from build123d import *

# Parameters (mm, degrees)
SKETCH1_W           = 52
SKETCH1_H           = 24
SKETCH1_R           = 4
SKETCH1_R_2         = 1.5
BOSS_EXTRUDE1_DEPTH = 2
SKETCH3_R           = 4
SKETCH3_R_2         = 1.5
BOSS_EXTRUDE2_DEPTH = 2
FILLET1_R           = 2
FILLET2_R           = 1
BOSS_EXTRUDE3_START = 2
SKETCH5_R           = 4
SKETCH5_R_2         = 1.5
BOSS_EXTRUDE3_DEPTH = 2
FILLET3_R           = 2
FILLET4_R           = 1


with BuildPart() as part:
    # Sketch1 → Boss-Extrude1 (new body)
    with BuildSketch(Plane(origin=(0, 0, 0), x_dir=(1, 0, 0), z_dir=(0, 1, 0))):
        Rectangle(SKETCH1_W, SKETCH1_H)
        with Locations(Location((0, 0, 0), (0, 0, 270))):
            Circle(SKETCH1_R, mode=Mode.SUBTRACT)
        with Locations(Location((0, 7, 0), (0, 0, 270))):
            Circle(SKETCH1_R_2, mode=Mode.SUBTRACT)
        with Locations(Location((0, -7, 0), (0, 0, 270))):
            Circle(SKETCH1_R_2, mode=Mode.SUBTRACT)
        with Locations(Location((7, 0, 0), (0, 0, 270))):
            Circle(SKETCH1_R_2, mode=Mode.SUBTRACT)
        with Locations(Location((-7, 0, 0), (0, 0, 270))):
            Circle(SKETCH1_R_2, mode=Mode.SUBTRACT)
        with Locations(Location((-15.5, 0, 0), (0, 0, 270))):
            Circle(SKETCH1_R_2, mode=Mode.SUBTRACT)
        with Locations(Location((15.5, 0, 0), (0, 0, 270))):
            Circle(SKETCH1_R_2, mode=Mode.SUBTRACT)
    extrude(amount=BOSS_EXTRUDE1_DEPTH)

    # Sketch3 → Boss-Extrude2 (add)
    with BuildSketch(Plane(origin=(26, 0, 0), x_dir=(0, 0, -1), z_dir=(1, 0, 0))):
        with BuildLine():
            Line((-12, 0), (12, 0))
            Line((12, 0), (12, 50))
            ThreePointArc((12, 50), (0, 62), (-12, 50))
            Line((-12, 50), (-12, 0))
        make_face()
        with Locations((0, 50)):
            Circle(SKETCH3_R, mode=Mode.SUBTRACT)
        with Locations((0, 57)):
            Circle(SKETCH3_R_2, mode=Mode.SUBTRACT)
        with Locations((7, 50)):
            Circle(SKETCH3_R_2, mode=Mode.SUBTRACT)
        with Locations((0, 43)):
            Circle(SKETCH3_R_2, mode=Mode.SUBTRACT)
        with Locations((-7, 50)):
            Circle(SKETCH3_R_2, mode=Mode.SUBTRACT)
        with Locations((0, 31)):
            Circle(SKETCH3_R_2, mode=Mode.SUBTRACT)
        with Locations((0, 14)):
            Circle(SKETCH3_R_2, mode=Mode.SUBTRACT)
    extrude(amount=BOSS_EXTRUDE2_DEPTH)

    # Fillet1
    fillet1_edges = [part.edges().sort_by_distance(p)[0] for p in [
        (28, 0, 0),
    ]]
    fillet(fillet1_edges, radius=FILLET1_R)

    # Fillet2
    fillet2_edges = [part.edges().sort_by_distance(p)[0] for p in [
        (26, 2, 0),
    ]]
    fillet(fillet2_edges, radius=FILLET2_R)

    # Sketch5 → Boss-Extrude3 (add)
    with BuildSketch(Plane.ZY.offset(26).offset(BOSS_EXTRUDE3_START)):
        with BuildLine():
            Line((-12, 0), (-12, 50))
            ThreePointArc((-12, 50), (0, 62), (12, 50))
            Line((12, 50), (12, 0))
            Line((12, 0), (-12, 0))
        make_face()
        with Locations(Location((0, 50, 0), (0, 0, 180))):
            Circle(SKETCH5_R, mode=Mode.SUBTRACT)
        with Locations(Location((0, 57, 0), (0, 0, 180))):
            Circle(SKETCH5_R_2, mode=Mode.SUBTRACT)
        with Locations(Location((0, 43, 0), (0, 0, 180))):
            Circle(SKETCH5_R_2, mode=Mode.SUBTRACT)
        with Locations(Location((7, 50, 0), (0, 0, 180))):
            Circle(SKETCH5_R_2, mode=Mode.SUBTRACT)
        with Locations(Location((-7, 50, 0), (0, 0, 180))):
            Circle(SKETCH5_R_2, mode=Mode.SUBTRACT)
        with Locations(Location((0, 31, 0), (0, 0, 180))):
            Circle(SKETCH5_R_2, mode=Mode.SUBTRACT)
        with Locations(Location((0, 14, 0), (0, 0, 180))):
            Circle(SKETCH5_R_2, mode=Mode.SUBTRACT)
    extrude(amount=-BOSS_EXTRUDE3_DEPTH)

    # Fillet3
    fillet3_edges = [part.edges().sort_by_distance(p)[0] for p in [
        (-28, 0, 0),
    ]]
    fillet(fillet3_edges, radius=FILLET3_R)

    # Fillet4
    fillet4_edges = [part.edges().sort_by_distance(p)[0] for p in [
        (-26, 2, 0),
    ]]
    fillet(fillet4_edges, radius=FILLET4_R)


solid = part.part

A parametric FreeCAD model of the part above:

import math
import FreeCAD as App
import Part
import Sketcher

V = App.Vector


def edges_at(feature, points):
    """Names of the edges that pass closest to the given points."""
    edges = feature.Shape.Edges
    near = lambda p: min(range(len(edges)), key=lambda i: edges[i].distToShape(Part.Vertex(*p))[0])
    return sorted({f"Edge{near(p) + 1}" for p in points})

doc = App.newDocument("Part")
body = doc.addObject("PartDesign::Body", "Body")

# Sketch on XZ plane
sketch1 = doc.addObject("Sketcher::SketchObject", "Sketch")
body.addObject(sketch1)
sketch1.AttachmentSupport = (doc.XZ_Plane, [""])
sketch1.MapMode = "FlatFace"
sketch1.addGeometry(Part.LineSegment(V(-26, -12, 0), V(-26, 12, 0)), False)
sketch1.addGeometry(Part.LineSegment(V(-26, 12, 0), V(26, 12, 0)), False)
sketch1.addGeometry(Part.LineSegment(V(26, 12, 0), V(26, -12, 0)), False)
sketch1.addGeometry(Part.LineSegment(V(26, -12, 0), V(-26, -12, 0)), False)
sketch1.addGeometry(Part.Circle(V(0, 7, 0), V(0, 0, 1), 1.5), False)
sketch1.addGeometry(Part.Circle(V(-15.5, 0, 0), V(0, 0, 1), 1.5), False)
sketch1.addGeometry(Part.Circle(V(-7, 0, 0), V(0, 0, 1), 1.5), False)
sketch1.addGeometry(Part.Circle(V(0, 0, 0), V(0, 0, 1), 4), False)
sketch1.addGeometry(Part.Circle(V(7, 0, 0), V(0, 0, 1), 1.5), False)
sketch1.addGeometry(Part.Circle(V(15.5, 0, 0), V(0, 0, 1), 1.5), False)
sketch1.addGeometry(Part.Circle(V(0, -7, 0), V(0, 0, 1), 1.5), False)
sketch1.addConstraint(Sketcher.Constraint("Coincident", 0, 2, 1, 1))
sketch1.addConstraint(Sketcher.Constraint("Coincident", 1, 2, 2, 1))
sketch1.addConstraint(Sketcher.Constraint("Coincident", 2, 2, 3, 1))
sketch1.addConstraint(Sketcher.Constraint("Coincident", 3, 2, 0, 1))
sketch1.addConstraint(Sketcher.Constraint("Vertical", 0))
sketch1.addConstraint(Sketcher.Constraint("Horizontal", 1))
sketch1.addConstraint(Sketcher.Constraint("Vertical", 2))
sketch1.addConstraint(Sketcher.Constraint("Horizontal", 3))
sketch1.addConstraint(Sketcher.Constraint("Coincident", 7, 3, -1, 1))
sketch1.addConstraint(Sketcher.Constraint("Equal", 4, 5))
sketch1.addConstraint(Sketcher.Constraint("Equal", 5, 6))
sketch1.addConstraint(Sketcher.Constraint("Equal", 6, 8))
sketch1.addConstraint(Sketcher.Constraint("Equal", 8, 9))
sketch1.addConstraint(Sketcher.Constraint("Equal", 9, 10))
sketch1.addConstraint(Sketcher.Constraint("Symmetric", 6, 3, 8, 3, -1, 1))
sketch1.addConstraint(Sketcher.Constraint("Symmetric", 5, 3, 9, 3, -1, 1))
sketch1.addConstraint(Sketcher.Constraint("Symmetric", 4, 3, 10, 3, -1, 1))
sketch1.addConstraint(Sketcher.Constraint("Symmetric", 0, 2, 2, 2, -1, 1))
sketch1.addConstraint(Sketcher.Constraint("PointOnObject", 4, 3, -2))
sketch1.addConstraint(Sketcher.Constraint("PointOnObject", 5, 3, -1))
sketch1.addConstraint(Sketcher.Constraint("PointOnObject", 6, 3, -1))
sketch1.addConstraint(Sketcher.Constraint("Diameter", 4, 3.0))
sketch1.addConstraint(Sketcher.Constraint("Diameter", 7, 8.0))
sketch1.addConstraint(Sketcher.Constraint("DistanceX", 1, 1, 1, 2, 52.0))
sketch1.addConstraint(Sketcher.Constraint("DistanceY", 0, 1, 0, 2, 24.0))
sketch1.addConstraint(Sketcher.Constraint("DistanceY", -1, 1, 4, 3, 7.0))
sketch1.addConstraint(Sketcher.Constraint("DistanceX", 6, 3, -1, 1, 7.0))
sketch1.addConstraint(Sketcher.Constraint("DistanceX", 5, 3, 9, 3, 31.0))
pad1 = doc.addObject("PartDesign::Pad", "Pad")
body.addObject(pad1)
pad1.Profile = sketch1
pad1.Length = 2
pad1.Reversed = True

# Sketch on YZ plane
sketch2 = doc.addObject("Sketcher::SketchObject", "Sketch001")
body.addObject(sketch2)
sketch2.AttachmentSupport = (doc.YZ_Plane, [""])
sketch2.MapMode = "FlatFace"
sketch2.AttachmentOffset = App.Placement(V(0, 0, 26), App.Rotation())
sketch2.addGeometry(Part.LineSegment(V(0, 12, 0), V(0, -12, 0)), False)
sketch2.addGeometry(Part.LineSegment(V(0, -12, 0), V(50, -12, 0)), False)
sketch2.addGeometry(Part.ArcOfCircle(Part.Circle(V(50, 0, 0), V(0, 0, 1), 12), math.radians(-90), math.radians(90)), False)
sketch2.addGeometry(Part.LineSegment(V(50, 12, 0), V(0, 12, 0)), False)
sketch2.addGeometry(Part.Circle(V(14, 0, 0), V(0, 0, 1), 1.5), False)
sketch2.addGeometry(Part.Circle(V(31, 0, 0), V(0, 0, 1), 1.5), False)
sketch2.addGeometry(Part.Circle(V(50, 7, 0), V(0, 0, 1), 1.5), False)
sketch2.addGeometry(Part.Circle(V(43, 0, 0), V(0, 0, 1), 1.5), False)
sketch2.addGeometry(Part.Circle(V(50, 0, 0), V(0, 0, 1), 4), False)
sketch2.addGeometry(Part.Circle(V(57, 0, 0), V(0, 0, 1), 1.5), False)
sketch2.addGeometry(Part.Circle(V(50, -7, 0), V(0, 0, 1), 1.5), False)
sketch2.addConstraint(Sketcher.Constraint("Coincident", 0, 2, 1, 1))
sketch2.addConstraint(Sketcher.Constraint("Tangent", 1, 2, 2, 1))
sketch2.addConstraint(Sketcher.Constraint("Tangent", 2, 2, 3, 1))
sketch2.addConstraint(Sketcher.Constraint("Coincident", 3, 2, 0, 1))
sketch2.addConstraint(Sketcher.Constraint("Vertical", 0))
sketch2.addConstraint(Sketcher.Constraint("Horizontal", 1))
sketch2.addConstraint(Sketcher.Constraint("Horizontal", 3))
sketch2.addConstraint(Sketcher.Constraint("Coincident", 8, 3, 2, 3))
sketch2.addConstraint(Sketcher.Constraint("Equal", 4, 5))
sketch2.addConstraint(Sketcher.Constraint("Equal", 5, 6))
sketch2.addConstraint(Sketcher.Constraint("Equal", 6, 7))
sketch2.addConstraint(Sketcher.Constraint("Equal", 7, 9))
sketch2.addConstraint(Sketcher.Constraint("Equal", 9, 10))
sketch2.addConstraint(Sketcher.Constraint("Symmetric", 0, 2, 3, 2, -1, 1))
sketch2.addConstraint(Sketcher.Constraint("Symmetric", 6, 3, 10, 3, -1))
sketch2.addConstraint(Sketcher.Constraint("PointOnObject", 4, 3, -1))
sketch2.addConstraint(Sketcher.Constraint("PointOnObject", 5, 3, -1))
sketch2.addConstraint(Sketcher.Constraint("PointOnObject", 7, 3, -1))
sketch2.addConstraint(Sketcher.Constraint("PointOnObject", 9, 3, -1))
sketch2.addConstraint(Sketcher.Constraint("Vertical", 2, 3, 6, 3))
sketch2.addConstraint(Sketcher.Constraint("Diameter", 4, 3.0))
sketch2.addConstraint(Sketcher.Constraint("Diameter", 8, 8.0))
sketch2.addConstraint(Sketcher.Constraint("Radius", 2, 12.0))
sketch2.addConstraint(Sketcher.Constraint("DistanceX", 1, 1, 1, 2, 50.0))
sketch2.addConstraint(Sketcher.Constraint("DistanceX", -1, 1, 4, 3, 14.0))
sketch2.addConstraint(Sketcher.Constraint("DistanceX", -1, 1, 5, 3, 31.0))
sketch2.addConstraint(Sketcher.Constraint("DistanceY", -1, 1, 6, 3, 7.0))
sketch2.addConstraint(Sketcher.Constraint("DistanceX", -1, 1, 7, 3, 43.0))
sketch2.addConstraint(Sketcher.Constraint("DistanceX", -1, 1, 9, 3, 57.0))
pad2 = doc.addObject("PartDesign::Pad", "Pad001")
body.addObject(pad2)
pad2.Profile = sketch2
pad2.Length = 2
doc.recompute()

fillet = doc.addObject("PartDesign::Fillet", "Fillet")
body.addObject(fillet)
fillet.Base = (pad2, edges_at(pad2, [(28, 0, 0)]))
fillet.Radius = 2
doc.recompute()

fillet2 = doc.addObject("PartDesign::Fillet", "Fillet001")
body.addObject(fillet2)
fillet2.Base = (fillet, edges_at(fillet, [(26, 2, 0)]))
fillet2.Radius = 1

# Sketch on YZ plane
sketch3 = doc.addObject("Sketcher::SketchObject", "Sketch002")
body.addObject(sketch3)
sketch3.AttachmentSupport = (doc.YZ_Plane, [""])
sketch3.MapMode = "FlatFace"
sketch3.AttachmentOffset = App.Placement(V(0, 0, -28), App.Rotation())
sketch3.addGeometry(Part.LineSegment(V(50, -12, 0), V(0, -12, 0)), False)
sketch3.addGeometry(Part.LineSegment(V(0, -12, 0), V(0, 12, 0)), False)
sketch3.addGeometry(Part.LineSegment(V(0, 12, 0), V(50, 12, 0)), False)
sketch3.addGeometry(Part.ArcOfCircle(Part.Circle(V(50, 0, 0), V(0, 0, 1), 12), math.radians(-90), math.radians(90)), False)
sketch3.addGeometry(Part.Circle(V(14, 0, 0), V(0, 0, 1), 1.5), False)
sketch3.addGeometry(Part.Circle(V(31, 0, 0), V(0, 0, 1), 1.5), False)
sketch3.addGeometry(Part.Circle(V(50, 7, 0), V(0, 0, 1), 1.5), False)
sketch3.addGeometry(Part.Circle(V(43, 0, 0), V(0, 0, 1), 1.5), False)
sketch3.addGeometry(Part.Circle(V(50, 0, 0), V(0, 0, 1), 4), False)
sketch3.addGeometry(Part.Circle(V(57, 0, 0), V(0, 0, 1), 1.5), False)
sketch3.addGeometry(Part.Circle(V(50, -7, 0), V(0, 0, 1), 1.5), False)
sketch3.addConstraint(Sketcher.Constraint("Coincident", 0, 2, 1, 1))
sketch3.addConstraint(Sketcher.Constraint("Coincident", 1, 2, 2, 1))
sketch3.addConstraint(Sketcher.Constraint("Tangent", 2, 2, 3, 2))
sketch3.addConstraint(Sketcher.Constraint("Tangent", 3, 1, 0, 1))
sketch3.addConstraint(Sketcher.Constraint("Horizontal", 0))
sketch3.addConstraint(Sketcher.Constraint("Vertical", 1))
sketch3.addConstraint(Sketcher.Constraint("Horizontal", 2))
sketch3.addConstraint(Sketcher.Constraint("Coincident", 8, 3, 3, 3))
sketch3.addConstraint(Sketcher.Constraint("Equal", 4, 5))
sketch3.addConstraint(Sketcher.Constraint("Equal", 5, 6))
sketch3.addConstraint(Sketcher.Constraint("Equal", 6, 7))
sketch3.addConstraint(Sketcher.Constraint("Equal", 7, 9))
sketch3.addConstraint(Sketcher.Constraint("Equal", 9, 10))
sketch3.addConstraint(Sketcher.Constraint("Symmetric", 0, 2, 1, 2, -1, 1))
sketch3.addConstraint(Sketcher.Constraint("Symmetric", 6, 3, 10, 3, -1))
sketch3.addConstraint(Sketcher.Constraint("PointOnObject", 4, 3, -1))
sketch3.addConstraint(Sketcher.Constraint("PointOnObject", 5, 3, -1))
sketch3.addConstraint(Sketcher.Constraint("PointOnObject", 7, 3, -1))
sketch3.addConstraint(Sketcher.Constraint("PointOnObject", 9, 3, -1))
sketch3.addConstraint(Sketcher.Constraint("Vertical", 3, 3, 6, 3))
sketch3.addConstraint(Sketcher.Constraint("Diameter", 4, 3.0))
sketch3.addConstraint(Sketcher.Constraint("Diameter", 8, 8.0))
sketch3.addConstraint(Sketcher.Constraint("Radius", 3, 12.0))
sketch3.addConstraint(Sketcher.Constraint("DistanceX", 0, 2, 0, 1, 50.0))
sketch3.addConstraint(Sketcher.Constraint("DistanceX", -1, 1, 4, 3, 14.0))
sketch3.addConstraint(Sketcher.Constraint("DistanceX", -1, 1, 5, 3, 31.0))
sketch3.addConstraint(Sketcher.Constraint("DistanceY", -1, 1, 6, 3, 7.0))
sketch3.addConstraint(Sketcher.Constraint("DistanceX", -1, 1, 7, 3, 43.0))
sketch3.addConstraint(Sketcher.Constraint("DistanceX", -1, 1, 9, 3, 57.0))
pad3 = doc.addObject("PartDesign::Pad", "Pad002")
body.addObject(pad3)
pad3.Profile = sketch3
pad3.Length = 2
doc.recompute()

fillet3 = doc.addObject("PartDesign::Fillet", "Fillet002")
body.addObject(fillet3)
fillet3.Base = (pad3, edges_at(pad3, [(-28, 0, 0)]))
fillet3.Radius = 2
doc.recompute()

fillet4 = doc.addObject("PartDesign::Fillet", "Fillet003")
body.addObject(fillet4)
fillet4.Base = (fillet3, edges_at(fillet3, [(-26, 2, 0)]))
fillet4.Radius = 1

doc.recompute()
